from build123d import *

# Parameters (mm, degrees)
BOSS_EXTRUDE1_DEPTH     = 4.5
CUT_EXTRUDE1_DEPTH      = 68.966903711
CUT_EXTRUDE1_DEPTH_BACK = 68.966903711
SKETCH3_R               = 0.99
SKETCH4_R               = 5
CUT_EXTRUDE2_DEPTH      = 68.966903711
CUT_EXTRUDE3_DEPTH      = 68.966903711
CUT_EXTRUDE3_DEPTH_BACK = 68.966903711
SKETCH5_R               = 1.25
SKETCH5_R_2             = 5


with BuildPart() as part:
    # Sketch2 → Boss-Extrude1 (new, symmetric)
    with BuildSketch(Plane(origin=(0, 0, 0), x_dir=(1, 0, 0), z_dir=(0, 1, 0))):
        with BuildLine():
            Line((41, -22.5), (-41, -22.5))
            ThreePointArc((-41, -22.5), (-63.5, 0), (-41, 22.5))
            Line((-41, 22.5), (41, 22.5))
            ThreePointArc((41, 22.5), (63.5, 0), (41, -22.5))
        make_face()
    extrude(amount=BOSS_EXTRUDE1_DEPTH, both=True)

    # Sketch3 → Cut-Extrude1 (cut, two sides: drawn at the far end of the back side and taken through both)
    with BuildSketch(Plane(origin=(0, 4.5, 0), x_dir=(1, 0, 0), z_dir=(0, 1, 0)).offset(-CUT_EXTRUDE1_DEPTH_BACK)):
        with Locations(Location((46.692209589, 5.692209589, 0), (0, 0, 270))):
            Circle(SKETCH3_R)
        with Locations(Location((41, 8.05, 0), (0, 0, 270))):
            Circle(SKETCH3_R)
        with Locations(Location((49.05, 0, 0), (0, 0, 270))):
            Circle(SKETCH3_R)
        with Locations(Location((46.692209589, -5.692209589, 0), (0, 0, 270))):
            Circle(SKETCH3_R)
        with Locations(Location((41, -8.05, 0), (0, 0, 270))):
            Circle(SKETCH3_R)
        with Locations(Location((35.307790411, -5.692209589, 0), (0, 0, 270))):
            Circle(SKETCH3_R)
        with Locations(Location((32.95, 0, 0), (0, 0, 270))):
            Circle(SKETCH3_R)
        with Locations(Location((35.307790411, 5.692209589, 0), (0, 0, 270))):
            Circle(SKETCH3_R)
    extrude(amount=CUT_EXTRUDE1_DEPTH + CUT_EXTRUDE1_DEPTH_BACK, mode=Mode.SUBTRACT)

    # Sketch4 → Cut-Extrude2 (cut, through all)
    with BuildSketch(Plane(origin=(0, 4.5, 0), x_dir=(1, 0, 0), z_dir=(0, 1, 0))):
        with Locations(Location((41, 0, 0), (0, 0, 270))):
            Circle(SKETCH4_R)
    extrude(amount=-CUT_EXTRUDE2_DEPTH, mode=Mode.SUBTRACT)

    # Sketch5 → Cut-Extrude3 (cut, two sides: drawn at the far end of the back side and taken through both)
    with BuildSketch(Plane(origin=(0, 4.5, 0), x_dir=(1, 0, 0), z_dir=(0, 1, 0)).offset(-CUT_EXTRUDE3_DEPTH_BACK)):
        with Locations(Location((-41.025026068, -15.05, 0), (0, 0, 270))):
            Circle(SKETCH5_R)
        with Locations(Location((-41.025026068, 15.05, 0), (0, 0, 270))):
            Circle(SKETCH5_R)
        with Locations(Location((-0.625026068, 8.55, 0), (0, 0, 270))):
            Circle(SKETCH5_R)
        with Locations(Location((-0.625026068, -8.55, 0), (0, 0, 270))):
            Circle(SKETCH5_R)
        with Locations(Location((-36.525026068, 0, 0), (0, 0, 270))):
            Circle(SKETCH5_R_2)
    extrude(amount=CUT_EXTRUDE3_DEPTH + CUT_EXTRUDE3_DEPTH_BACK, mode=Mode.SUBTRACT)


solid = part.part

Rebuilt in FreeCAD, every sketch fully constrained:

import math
import FreeCAD as App
import Part
import Sketcher

V = App.Vector
Q = App.Units.Quantity

doc = App.newDocument("Part")
body = doc.addObject("PartDesign::Body", "Body")

sketch1 = doc.addObject("Sketcher::SketchObject", "Sketch")
body.addObject(sketch1)
sketch1.AttachmentSupport = (doc.XZ_Plane, [""])
sketch1.MapMode = "FlatFace"
sketch1.addGeometry(Part.LineSegment(V(-41, 22, 0), V(41, 22, 0)), False)
sketch1.addGeometry(Part.ArcOfCircle(Part.Circle(V(41, 0, 0), V(0, 0, 1), 22), math.radians(-90), math.radians(90)), False)
sketch1.addGeometry(Part.LineSegment(V(41, -22, 0), V(-41, -22, 0)), False)
sketch1.addGeometry(Part.ArcOfCircle(Part.Circle(V(-41, 0, 0), V(0, 0, 1), 22), math.radians(90), math.radians(270)), False)
sketch1.addConstraint(Sketcher.Constraint("Tangent", 0, 2, 1, 2))
sketch1.addConstraint(Sketcher.Constraint("Tangent", 1, 1, 2, 1))
sketch1.addConstraint(Sketcher.Constraint("Tangent", 2, 2, 3, 2))
sketch1.addConstraint(Sketcher.Constraint("Tangent", 3, 1, 0, 1))
sketch1.addConstraint(Sketcher.Constraint("Horizontal", 0))
sketch1.addConstraint(Sketcher.Constraint("Horizontal", 2))
sketch1.addConstraint(Sketcher.Constraint("Symmetric", 1, 3, 3, 3, -1, 1))
sketch1.addConstraint(Sketcher.Constraint("Radius", 1, Q("22.5 mm")))
sketch1.addConstraint(Sketcher.Constraint("DistanceX", 0, 1, 0, 2, Q("82 mm")))
pad1 = doc.addObject("PartDesign::Pad", "Pad")
body.addObject(pad1)
pad1.Profile = sketch1
pad1.Length = 9
pad1.Midplane = True

sketch2 = doc.addObject("Sketcher::SketchObject", "Sketch001")
body.addObject(sketch2)
sketch2.AttachmentSupport = (doc.XZ_Plane, [""])
sketch2.MapMode = "FlatFace"
sketch2.AttachmentOffset = App.Placement(V(0, 0, -4.5), App.Rotation())
sketch2.addGeometry(Part.Circle(V(46.7, -5.7, 0), V(0, 0, 1), 1), False)
sketch2.addGeometry(Part.Circle(V(41, -8.1, 0), V(0, 0, 1), 1), False)
sketch2.addGeometry(Part.Circle(V(49, 0, 0), V(0, 0, 1), 1), False)
sketch2.addGeometry(Part.Circle(V(46.7, 5.7, 0), V(0, 0, 1), 1), False)
sketch2.addGeometry(Part.Circle(V(41, 8.1, 0), V(0, 0, 1), 1), False)
sketch2.addGeometry(Part.Circle(V(35.3, 5.7, 0), V(0, 0, 1), 1), False)
sketch2.addGeometry(Part.Circle(V(33, 0, 0), V(0, 0, 1), 1), False)
sketch2.addGeometry(Part.Circle(V(35.3, -5.7, 0), V(0, 0, 1), 1), False)
sketch2.addConstraint(Sketcher.Constraint("Equal", 0, 1))
sketch2.addConstraint(Sketcher.Constraint("Equal", 1, 2))
sketch2.addConstraint(Sketcher.Constraint("Equal", 2, 3))
sketch2.addConstraint(Sketcher.Constraint("Equal", 3, 4))
sketch2.addConstraint(Sketcher.Constraint("Equal", 4, 5))
sketch2.addConstraint(Sketcher.Constraint("Equal", 5, 6))
sketch2.addConstraint(Sketcher.Constraint("Equal", 6, 7))
sketch2.addConstraint(Sketcher.Constraint("Symmetric", 0, 3, 3, 3, -1))
sketch2.addConstraint(Sketcher.Constraint("Symmetric", 1, 3, 4, 3, -1))
sketch2.addConstraint(Sketcher.Constraint("Symmetric", 5, 3, 7, 3, -1))
sketch2.addConstraint(Sketcher.Constraint("PointOnObject", 2, 3, -1))
sketch2.addConstraint(Sketcher.Constraint("PointOnObject", 6, 3, -1))
sketch2.addConstraint(Sketcher.Constraint("Horizontal", 3, 3, 5, 3))
sketch2.addConstraint(Sketcher.Constraint("Diameter", 0, Q("1.98 mm")))
sketch2.addConstraint(Sketcher.Constraint("DistanceX", -1, 1, 1, 3, Q("41 mm")))
sketch2.addConstraint(Sketcher.Constraint("DistanceY", 1, 3, 4, 3, Q("16.1 mm")))
sketch2.addConstraint(Sketcher.Constraint("DistanceX", -1, 1, 2, 3, Q("49.05 mm")))
sketch2.addConstraint(Sketcher.Constraint("DistanceX", -1, 1, 6, 3, Q("32.95 mm")))
sketch2.addConstraint(Sketcher.Constraint("DistanceX", -1, 1, 0, 3, Q("46.69221 mm")))
sketch2.addConstraint(Sketcher.Constraint("DistanceY", 0, 3, -1, 1, Q("5.69221 mm")))
sketch2.addConstraint(Sketcher.Constraint("DistanceX", -1, 1, 5, 3, Q("35.30779 mm")))
pocket1 = doc.addObject("PartDesign::Pocket", "Pocket")
body.addObject(pocket1)
pocket1.Profile = sketch2
pocket1.Type = "ThroughAll"
pocket1.Midplane = True

sketch3 = doc.addObject("Sketcher::SketchObject", "Sketch002")
body.addObject(sketch3)
sketch3.AttachmentSupport = (doc.XZ_Plane, [""])
sketch3.MapMode = "FlatFace"
sketch3.AttachmentOffset = App.Placement(V(0, 0, -4.5), App.Rotation())
sketch3.addGeometry(Part.Circle(V(41, 0, 0), V(0, 0, 1), 5), False)
sketch3.addConstraint(Sketcher.Constraint("PointOnObject", 0, 3, -1))
sketch3.addConstraint(Sketcher.Constraint("Diameter", 0, Q("10 mm")))
sketch3.addConstraint(Sketcher.Constraint("DistanceX", -1, 1, 0, 3, Q("41 mm")))
pocket2 = doc.addObject("PartDesign::Pocket", "Pocket001")
body.addObject(pocket2)
pocket2.Profile = sketch3
pocket2.Type = "ThroughAll"
pocket2.Reversed = True

sketch4 = doc.addObject("Sketcher::SketchObject", "Sketch003")
body.addObject(sketch4)
sketch4.AttachmentSupport = (doc.XZ_Plane, [""])
sketch4.MapMode = "FlatFace"
sketch4.AttachmentOffset = App.Placement(V(0, 0, -4.5), App.Rotation())
sketch4.addGeometry(Part.Circle(V(-41, 15.1, 0), V(0, 0, 1), 1.2), False)
sketch4.addGeometry(Part.Circle(V(-41, -15.1, 0), V(0, 0, 1), 1.2), False)
sketch4.addGeometry(Part.Circle(V(-0.6, -8.6, 0), V(0, 0, 1), 1.2), False)
sketch4.addGeometry(Part.Circle(V(-0.6, 8.6, 0), V(0, 0, 1), 1.2), False)
sketch4.addGeometry(Part.Circle(V(-36.5, 0, 0), V(0, 0, 1), 5), False)
sketch4.addConstraint(Sketcher.Constraint("Equal", 0, 1))
sketch4.addConstraint(Sketcher.Constraint("Equal", 1, 2))
sketch4.addConstraint(Sketcher.Constraint("Equal", 2, 3))
sketch4.addConstraint(Sketcher.Constraint("Symmetric", 0, 3, 1, 3, -1))
sketch4.addConstraint(Sketcher.Constraint("Symmetric", 2, 3, 3, 3, -1))
sketch4.addConstraint(Sketcher.Constraint("PointOnObject", 4, 3, -1))
sketch4.addConstraint(Sketcher.Constraint("Diameter", 4, Q("10 mm")))
sketch4.addConstraint(Sketcher.Constraint("Diameter", 0, Q("2.5 mm")))
sketch4.addConstraint(Sketcher.Constraint("DistanceY", 1, 3, 0, 3, Q("30.1 mm")))
sketch4.addConstraint(Sketcher.Constraint("DistanceX", 1, 3, 2, 3, Q("40.4 mm")))
sketch4.addConstraint(Sketcher.Constraint("DistanceY", 1, 3, 2, 3, Q("6.5 mm")))
sketch4.addConstraint(Sketcher.Constraint("DistanceX", 0, 3, 4, 3, Q("4.5 mm")))
sketch4.addConstraint(Sketcher.Constraint("DistanceX", 0, 3, -1, 1, Q("41.025026 mm")))
pocket3 = doc.addObject("PartDesign::Pocket", "Pocket002")
body.addObject(pocket3)
pocket3.Profile = sketch4
pocket3.Type = "ThroughAll"
pocket3.Midplane = True

doc.recompute()
